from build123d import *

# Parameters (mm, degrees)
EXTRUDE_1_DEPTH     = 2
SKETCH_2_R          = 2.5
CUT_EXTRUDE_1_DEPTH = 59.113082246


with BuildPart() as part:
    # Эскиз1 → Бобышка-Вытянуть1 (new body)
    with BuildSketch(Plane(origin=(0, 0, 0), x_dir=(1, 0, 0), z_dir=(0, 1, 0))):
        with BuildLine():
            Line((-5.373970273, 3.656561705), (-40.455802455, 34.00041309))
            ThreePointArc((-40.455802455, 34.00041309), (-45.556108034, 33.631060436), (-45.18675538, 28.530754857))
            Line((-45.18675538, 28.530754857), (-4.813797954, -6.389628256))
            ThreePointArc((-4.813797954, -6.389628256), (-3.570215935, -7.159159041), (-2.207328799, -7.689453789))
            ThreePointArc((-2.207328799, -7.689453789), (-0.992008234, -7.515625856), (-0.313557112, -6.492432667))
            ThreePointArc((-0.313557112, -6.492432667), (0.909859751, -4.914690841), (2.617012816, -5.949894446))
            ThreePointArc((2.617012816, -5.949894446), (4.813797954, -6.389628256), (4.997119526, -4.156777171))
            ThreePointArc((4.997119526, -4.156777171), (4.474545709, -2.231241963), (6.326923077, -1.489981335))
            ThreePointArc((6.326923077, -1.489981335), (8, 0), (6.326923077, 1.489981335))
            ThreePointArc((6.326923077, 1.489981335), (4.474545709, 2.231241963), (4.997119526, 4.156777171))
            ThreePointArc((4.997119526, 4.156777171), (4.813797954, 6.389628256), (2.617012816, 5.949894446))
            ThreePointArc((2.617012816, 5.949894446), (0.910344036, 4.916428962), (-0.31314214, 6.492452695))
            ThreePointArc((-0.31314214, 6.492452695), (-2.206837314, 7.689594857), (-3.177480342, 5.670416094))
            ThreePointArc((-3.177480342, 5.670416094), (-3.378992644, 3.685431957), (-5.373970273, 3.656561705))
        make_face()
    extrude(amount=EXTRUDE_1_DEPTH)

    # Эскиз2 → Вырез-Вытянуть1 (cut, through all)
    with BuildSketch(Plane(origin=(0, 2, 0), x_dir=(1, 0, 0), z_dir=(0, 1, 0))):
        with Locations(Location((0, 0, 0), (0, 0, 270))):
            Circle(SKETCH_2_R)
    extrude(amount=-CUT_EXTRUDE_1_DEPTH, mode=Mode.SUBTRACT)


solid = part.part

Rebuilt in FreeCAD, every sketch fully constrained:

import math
import FreeCAD as App
import Part
import Sketcher
from FreeCAD import Vector

doc = App.newDocument("Part")
body = doc.addObject("PartDesign::Body", "Body")

# Sketch on XZ plane
sketch1 = body.newObject("Sketcher::SketchObject", "Sketch")
sketch1.AttachmentSupport = (doc.getObject("XZ_Plane"), [""])
sketch1.MapMode = "FlatFace"
sketch1.addGeometry(Part.LineSegment(Vector(-5.37397, -3.656562, 0), Vector(-40.455802, -34.000413, 0)), False)
sketch1.addGeometry(Part.ArcOfCircle(Part.Circle(Vector(-42.821279, -31.265584, 0), Vector(0, 0, 1), 3.615905), math.radians(130.857999), math.radians(310.857999)), False)
sketch1.addGeometry(Part.LineSegment(Vector(-45.186755, -28.530755, 0), Vector(-4.813798, 6.389628, 0)), False)
sketch1.addGeometry(Part.ArcOfCircle(Part.Circle(Vector(0, 0, 0), Vector(0, 0, 1), 8), math.radians(106.016615), math.radians(126.993523)), False)
sketch1.addGeometry(Part.ArcOfCircle(Part.Circle(Vector(-1.793455, 6.247681, 0), Vector(0, 0, 1), 1.5), math.radians(9.390806), math.radians(106.016615)), False)
sketch1.addGeometry(Part.ArcOfCircle(Part.Circle(Vector(1.182916, 6.389628, 0), Vector(0, 0, 1), 1.5), math.radians(176.07008), math.radians(342.953012)), False)
sketch1.addGeometry(Part.ArcOfCircle(Part.Circle(Vector(3.911211, 5.191573, 0), Vector(0, 0, 1), 1.5), math.radians(-43.619333), math.radians(149.632286)), False)
sketch1.addGeometry(Part.ArcOfCircle(Part.Circle(Vector(5.816909, 2.900615, 0), Vector(0, 0, 1), 1.5), math.radians(123.129048), math.radians(289.877429)), False)
sketch1.addGeometry(Part.ArcOfCircle(Part.Circle(Vector(6.5, 0, 0), Vector(0, 0, 1), 1.5), math.radians(-96.62581), math.radians(96.62581)), False)
sketch1.addGeometry(Part.ArcOfCircle(Part.Circle(Vector(5.816909, -2.900615, 0), Vector(0, 0, 1), 1.5), math.radians(70.122571), math.radians(236.870952)), False)
sketch1.addGeometry(Part.ArcOfCircle(Part.Circle(Vector(3.911211, -5.191573, 0), Vector(0, 0, 1), 1.5), math.radians(-149.632286), math.radians(43.619333)), False)
sketch1.addGeometry(Part.ArcOfCircle(Part.Circle(Vector(1.183447, -6.391358, 0), Vector(0, 0, 1), 1.5), math.radians(17.116095), math.radians(183.864476)), False)
sketch1.addGeometry(Part.ArcOfCircle(Part.Circle(Vector(-1.793055, -6.247796, 0), Vector(0, 0, 1), 1.5), math.radians(157.361237), math.radians(350.612857)), False)
sketch1.addGeometry(Part.ArcOfCircle(Part.Circle(Vector(-4.39269, -4.791062, 0), Vector(0, 0, 1), 1.5), math.radians(-35.890382), math.radians(130.857999)), False)
sketch1.addConstraint(Sketcher.Constraint("Coincident", 0, 2, 1, 2))
sketch1.addConstraint(Sketcher.Constraint("Coincident", 1, 1, 2, 1))
sketch1.addConstraint(Sketcher.Constraint("Coincident", 2, 2, 3, 2))
sketch1.addConstraint(Sketcher.Constraint("Coincident", 3, 1, 4, 2))
sketch1.addConstraint(Sketcher.Constraint("Coincident", 4, 1, 5, 1))
sketch1.addConstraint(Sketcher.Constraint("Coincident", 5, 2, 6, 2))
sketch1.addConstraint(Sketcher.Constraint("Coincident", 6, 1, 7, 1))
sketch1.addConstraint(Sketcher.Constraint("Coincident", 7, 2, 8, 2))
sketch1.addConstraint(Sketcher.Constraint("Coincident", 8, 1, 9, 1))
sketch1.addConstraint(Sketcher.Constraint("Coincident", 9, 2, 10, 2))
sketch1.addConstraint(Sketcher.Constraint("Coincident", 10, 1, 11, 1))
sketch1.addConstraint(Sketcher.Constraint("Coincident", 11, 2, 12, 2))
sketch1.addConstraint(Sketcher.Constraint("Coincident", 12, 1, 13, 1))
sketch1.addConstraint(Sketcher.Constraint("Coincident", 13, 2, 0, 1))
sketch1.addConstraint(Sketcher.Constraint("Coincident", 3, 3, -1, 1))
sketch1.addConstraint(Sketcher.Constraint("PointOnObject", 8, 3, -1))
sketch1.addConstraint(Sketcher.Constraint("Radius", 3, 8.0))
sketch1.addConstraint(Sketcher.Constraint("Radius", 4, 1.5))
sketch1.addConstraint(Sketcher.Constraint("Radius", 5, 1.5))
sketch1.addConstraint(Sketcher.Constraint("Radius", 6, 1.5))
sketch1.addConstraint(Sketcher.Constraint("Radius", 7, 1.5))
sketch1.addConstraint(Sketcher.Constraint("Radius", 8, 1.5))
sketch1.addConstraint(Sketcher.Constraint("Radius", 9, 1.5))
sketch1.addConstraint(Sketcher.Constraint("Radius", 10, 1.5))
sketch1.addConstraint(Sketcher.Constraint("Radius", 11, 1.5))
sketch1.addConstraint(Sketcher.Constraint("Radius", 12, 1.5))
sketch1.addConstraint(Sketcher.Constraint("Radius", 13, 1.5))
sketch1.addConstraint(Sketcher.Constraint("DistanceX", -1, 1, 8, 3, 6.5))
sketch1.addConstraint(Sketcher.Constraint("Radius", 1, 3.615905))
sketch1.addConstraint(Sketcher.Constraint("DistanceX", 6, 3, 7, 3, 1.905699))
sketch1.addConstraint(Sketcher.Constraint("DistanceY", 1, 3, 7, 3, 34.166199))
sketch1.addConstraint(Sketcher.Constraint("DistanceX", 6, 3, 9, 3, 1.905699))
sketch1.addConstraint(Sketcher.Constraint("DistanceX", 10, 3, 9, 3, 1.905699))
sketch1.addConstraint(Sketcher.Constraint("DistanceX", 13, 3, 10, 3, 8.303901))
sketch1.addConstraint(Sketcher.Constraint("DistanceX", 1, 1, 12, 3, 43.3937))
sketch1.addConstraint(Sketcher.Constraint("DistanceX", 5, 2, 6, 3, 1.294198))
sketch1.addConstraint(Sketcher.Constraint("DistanceX", 10, 1, 10, 3, 1.294198))
sketch1.addConstraint(Sketcher.Constraint("DistanceY", 12, 3, 10, 1, 0.297901))
sketch1.addConstraint(Sketcher.Constraint("DistanceY", 13, 3, 13, 2, 1.1345))
sketch1.addConstraint(Sketcher.Constraint("DistanceX", 1, 3, -1, 1, 42.821279))
sketch1.addConstraint(Sketcher.Constraint("DistanceY", -1, 1, 4, 3, 6.247681))
sketch1.addConstraint(Sketcher.Constraint("DistanceY", -1, 1, 5, 3, 6.389628))
sketch1.addConstraint(Sketcher.Constraint("DistanceX", -1, 1, 6, 3, 3.911211))
sketch1.addConstraint(Sketcher.Constraint("DistanceY", 13, 3, -1, 1, 4.791062))
sketch1.addConstraint(Sketcher.Constraint("DistanceY", -1, 1, 2, 2, 6.389628))
sketch1.addConstraint(Sketcher.Constraint("DistanceX", 3, 1, -1, 1, 2.207329))
sketch1.addConstraint(Sketcher.Constraint("DistanceX", -1, 1, 6, 1, 4.99712))
sketch1.addConstraint(Sketcher.Constraint("DistanceY", -1, 1, 7, 2, 1.489981))
sketch1.addConstraint(Sketcher.Constraint("DistanceY", 8, 1, -1, 1, 1.489981))
sketch1.addConstraint(Sketcher.Constraint("DistanceX", -1, 1, 9, 2, 4.99712))
sketch1.addConstraint(Sketcher.Constraint("DistanceX", 12, 1, -1, 1, 3.17748))
sketch1.addConstraint(Sketcher.Constraint("DistanceY", 11, 3, 12, 3, 0.143562))
sketch1.addConstraint(Sketcher.Constraint("DistanceY", 0, 2, 1, 3, 2.734829))
pad1 = body.newObject("PartDesign::Pad", "Pad")
pad1.Profile = sketch1
pad1.Length = 2
pad1.Reversed = True

# Sketch on XZ plane
sketch2 = body.newObject("Sketcher::SketchObject", "Sketch001")
sketch2.AttachmentSupport = (doc.getObject("XZ_Plane"), [""])
sketch2.MapMode = "FlatFace"
sketch2.AttachmentOffset = App.Placement(Vector(0, 0, -2), App.Rotation())
sketch2.addGeometry(Part.Circle(Vector(0, 0, 0), Vector(0, 0, 1), 2.5), False)
sketch2.addConstraint(Sketcher.Constraint("Coincident", 0, 3, -1, 1))
sketch2.addConstraint(Sketcher.Constraint("Diameter", 0, 5.0))
pocket1 = body.newObject("PartDesign::Pocket", "Pocket")
pocket1.Profile = sketch2
pocket1.Type = "ThroughAll"
pocket1.Reversed = True

doc.recompute()
